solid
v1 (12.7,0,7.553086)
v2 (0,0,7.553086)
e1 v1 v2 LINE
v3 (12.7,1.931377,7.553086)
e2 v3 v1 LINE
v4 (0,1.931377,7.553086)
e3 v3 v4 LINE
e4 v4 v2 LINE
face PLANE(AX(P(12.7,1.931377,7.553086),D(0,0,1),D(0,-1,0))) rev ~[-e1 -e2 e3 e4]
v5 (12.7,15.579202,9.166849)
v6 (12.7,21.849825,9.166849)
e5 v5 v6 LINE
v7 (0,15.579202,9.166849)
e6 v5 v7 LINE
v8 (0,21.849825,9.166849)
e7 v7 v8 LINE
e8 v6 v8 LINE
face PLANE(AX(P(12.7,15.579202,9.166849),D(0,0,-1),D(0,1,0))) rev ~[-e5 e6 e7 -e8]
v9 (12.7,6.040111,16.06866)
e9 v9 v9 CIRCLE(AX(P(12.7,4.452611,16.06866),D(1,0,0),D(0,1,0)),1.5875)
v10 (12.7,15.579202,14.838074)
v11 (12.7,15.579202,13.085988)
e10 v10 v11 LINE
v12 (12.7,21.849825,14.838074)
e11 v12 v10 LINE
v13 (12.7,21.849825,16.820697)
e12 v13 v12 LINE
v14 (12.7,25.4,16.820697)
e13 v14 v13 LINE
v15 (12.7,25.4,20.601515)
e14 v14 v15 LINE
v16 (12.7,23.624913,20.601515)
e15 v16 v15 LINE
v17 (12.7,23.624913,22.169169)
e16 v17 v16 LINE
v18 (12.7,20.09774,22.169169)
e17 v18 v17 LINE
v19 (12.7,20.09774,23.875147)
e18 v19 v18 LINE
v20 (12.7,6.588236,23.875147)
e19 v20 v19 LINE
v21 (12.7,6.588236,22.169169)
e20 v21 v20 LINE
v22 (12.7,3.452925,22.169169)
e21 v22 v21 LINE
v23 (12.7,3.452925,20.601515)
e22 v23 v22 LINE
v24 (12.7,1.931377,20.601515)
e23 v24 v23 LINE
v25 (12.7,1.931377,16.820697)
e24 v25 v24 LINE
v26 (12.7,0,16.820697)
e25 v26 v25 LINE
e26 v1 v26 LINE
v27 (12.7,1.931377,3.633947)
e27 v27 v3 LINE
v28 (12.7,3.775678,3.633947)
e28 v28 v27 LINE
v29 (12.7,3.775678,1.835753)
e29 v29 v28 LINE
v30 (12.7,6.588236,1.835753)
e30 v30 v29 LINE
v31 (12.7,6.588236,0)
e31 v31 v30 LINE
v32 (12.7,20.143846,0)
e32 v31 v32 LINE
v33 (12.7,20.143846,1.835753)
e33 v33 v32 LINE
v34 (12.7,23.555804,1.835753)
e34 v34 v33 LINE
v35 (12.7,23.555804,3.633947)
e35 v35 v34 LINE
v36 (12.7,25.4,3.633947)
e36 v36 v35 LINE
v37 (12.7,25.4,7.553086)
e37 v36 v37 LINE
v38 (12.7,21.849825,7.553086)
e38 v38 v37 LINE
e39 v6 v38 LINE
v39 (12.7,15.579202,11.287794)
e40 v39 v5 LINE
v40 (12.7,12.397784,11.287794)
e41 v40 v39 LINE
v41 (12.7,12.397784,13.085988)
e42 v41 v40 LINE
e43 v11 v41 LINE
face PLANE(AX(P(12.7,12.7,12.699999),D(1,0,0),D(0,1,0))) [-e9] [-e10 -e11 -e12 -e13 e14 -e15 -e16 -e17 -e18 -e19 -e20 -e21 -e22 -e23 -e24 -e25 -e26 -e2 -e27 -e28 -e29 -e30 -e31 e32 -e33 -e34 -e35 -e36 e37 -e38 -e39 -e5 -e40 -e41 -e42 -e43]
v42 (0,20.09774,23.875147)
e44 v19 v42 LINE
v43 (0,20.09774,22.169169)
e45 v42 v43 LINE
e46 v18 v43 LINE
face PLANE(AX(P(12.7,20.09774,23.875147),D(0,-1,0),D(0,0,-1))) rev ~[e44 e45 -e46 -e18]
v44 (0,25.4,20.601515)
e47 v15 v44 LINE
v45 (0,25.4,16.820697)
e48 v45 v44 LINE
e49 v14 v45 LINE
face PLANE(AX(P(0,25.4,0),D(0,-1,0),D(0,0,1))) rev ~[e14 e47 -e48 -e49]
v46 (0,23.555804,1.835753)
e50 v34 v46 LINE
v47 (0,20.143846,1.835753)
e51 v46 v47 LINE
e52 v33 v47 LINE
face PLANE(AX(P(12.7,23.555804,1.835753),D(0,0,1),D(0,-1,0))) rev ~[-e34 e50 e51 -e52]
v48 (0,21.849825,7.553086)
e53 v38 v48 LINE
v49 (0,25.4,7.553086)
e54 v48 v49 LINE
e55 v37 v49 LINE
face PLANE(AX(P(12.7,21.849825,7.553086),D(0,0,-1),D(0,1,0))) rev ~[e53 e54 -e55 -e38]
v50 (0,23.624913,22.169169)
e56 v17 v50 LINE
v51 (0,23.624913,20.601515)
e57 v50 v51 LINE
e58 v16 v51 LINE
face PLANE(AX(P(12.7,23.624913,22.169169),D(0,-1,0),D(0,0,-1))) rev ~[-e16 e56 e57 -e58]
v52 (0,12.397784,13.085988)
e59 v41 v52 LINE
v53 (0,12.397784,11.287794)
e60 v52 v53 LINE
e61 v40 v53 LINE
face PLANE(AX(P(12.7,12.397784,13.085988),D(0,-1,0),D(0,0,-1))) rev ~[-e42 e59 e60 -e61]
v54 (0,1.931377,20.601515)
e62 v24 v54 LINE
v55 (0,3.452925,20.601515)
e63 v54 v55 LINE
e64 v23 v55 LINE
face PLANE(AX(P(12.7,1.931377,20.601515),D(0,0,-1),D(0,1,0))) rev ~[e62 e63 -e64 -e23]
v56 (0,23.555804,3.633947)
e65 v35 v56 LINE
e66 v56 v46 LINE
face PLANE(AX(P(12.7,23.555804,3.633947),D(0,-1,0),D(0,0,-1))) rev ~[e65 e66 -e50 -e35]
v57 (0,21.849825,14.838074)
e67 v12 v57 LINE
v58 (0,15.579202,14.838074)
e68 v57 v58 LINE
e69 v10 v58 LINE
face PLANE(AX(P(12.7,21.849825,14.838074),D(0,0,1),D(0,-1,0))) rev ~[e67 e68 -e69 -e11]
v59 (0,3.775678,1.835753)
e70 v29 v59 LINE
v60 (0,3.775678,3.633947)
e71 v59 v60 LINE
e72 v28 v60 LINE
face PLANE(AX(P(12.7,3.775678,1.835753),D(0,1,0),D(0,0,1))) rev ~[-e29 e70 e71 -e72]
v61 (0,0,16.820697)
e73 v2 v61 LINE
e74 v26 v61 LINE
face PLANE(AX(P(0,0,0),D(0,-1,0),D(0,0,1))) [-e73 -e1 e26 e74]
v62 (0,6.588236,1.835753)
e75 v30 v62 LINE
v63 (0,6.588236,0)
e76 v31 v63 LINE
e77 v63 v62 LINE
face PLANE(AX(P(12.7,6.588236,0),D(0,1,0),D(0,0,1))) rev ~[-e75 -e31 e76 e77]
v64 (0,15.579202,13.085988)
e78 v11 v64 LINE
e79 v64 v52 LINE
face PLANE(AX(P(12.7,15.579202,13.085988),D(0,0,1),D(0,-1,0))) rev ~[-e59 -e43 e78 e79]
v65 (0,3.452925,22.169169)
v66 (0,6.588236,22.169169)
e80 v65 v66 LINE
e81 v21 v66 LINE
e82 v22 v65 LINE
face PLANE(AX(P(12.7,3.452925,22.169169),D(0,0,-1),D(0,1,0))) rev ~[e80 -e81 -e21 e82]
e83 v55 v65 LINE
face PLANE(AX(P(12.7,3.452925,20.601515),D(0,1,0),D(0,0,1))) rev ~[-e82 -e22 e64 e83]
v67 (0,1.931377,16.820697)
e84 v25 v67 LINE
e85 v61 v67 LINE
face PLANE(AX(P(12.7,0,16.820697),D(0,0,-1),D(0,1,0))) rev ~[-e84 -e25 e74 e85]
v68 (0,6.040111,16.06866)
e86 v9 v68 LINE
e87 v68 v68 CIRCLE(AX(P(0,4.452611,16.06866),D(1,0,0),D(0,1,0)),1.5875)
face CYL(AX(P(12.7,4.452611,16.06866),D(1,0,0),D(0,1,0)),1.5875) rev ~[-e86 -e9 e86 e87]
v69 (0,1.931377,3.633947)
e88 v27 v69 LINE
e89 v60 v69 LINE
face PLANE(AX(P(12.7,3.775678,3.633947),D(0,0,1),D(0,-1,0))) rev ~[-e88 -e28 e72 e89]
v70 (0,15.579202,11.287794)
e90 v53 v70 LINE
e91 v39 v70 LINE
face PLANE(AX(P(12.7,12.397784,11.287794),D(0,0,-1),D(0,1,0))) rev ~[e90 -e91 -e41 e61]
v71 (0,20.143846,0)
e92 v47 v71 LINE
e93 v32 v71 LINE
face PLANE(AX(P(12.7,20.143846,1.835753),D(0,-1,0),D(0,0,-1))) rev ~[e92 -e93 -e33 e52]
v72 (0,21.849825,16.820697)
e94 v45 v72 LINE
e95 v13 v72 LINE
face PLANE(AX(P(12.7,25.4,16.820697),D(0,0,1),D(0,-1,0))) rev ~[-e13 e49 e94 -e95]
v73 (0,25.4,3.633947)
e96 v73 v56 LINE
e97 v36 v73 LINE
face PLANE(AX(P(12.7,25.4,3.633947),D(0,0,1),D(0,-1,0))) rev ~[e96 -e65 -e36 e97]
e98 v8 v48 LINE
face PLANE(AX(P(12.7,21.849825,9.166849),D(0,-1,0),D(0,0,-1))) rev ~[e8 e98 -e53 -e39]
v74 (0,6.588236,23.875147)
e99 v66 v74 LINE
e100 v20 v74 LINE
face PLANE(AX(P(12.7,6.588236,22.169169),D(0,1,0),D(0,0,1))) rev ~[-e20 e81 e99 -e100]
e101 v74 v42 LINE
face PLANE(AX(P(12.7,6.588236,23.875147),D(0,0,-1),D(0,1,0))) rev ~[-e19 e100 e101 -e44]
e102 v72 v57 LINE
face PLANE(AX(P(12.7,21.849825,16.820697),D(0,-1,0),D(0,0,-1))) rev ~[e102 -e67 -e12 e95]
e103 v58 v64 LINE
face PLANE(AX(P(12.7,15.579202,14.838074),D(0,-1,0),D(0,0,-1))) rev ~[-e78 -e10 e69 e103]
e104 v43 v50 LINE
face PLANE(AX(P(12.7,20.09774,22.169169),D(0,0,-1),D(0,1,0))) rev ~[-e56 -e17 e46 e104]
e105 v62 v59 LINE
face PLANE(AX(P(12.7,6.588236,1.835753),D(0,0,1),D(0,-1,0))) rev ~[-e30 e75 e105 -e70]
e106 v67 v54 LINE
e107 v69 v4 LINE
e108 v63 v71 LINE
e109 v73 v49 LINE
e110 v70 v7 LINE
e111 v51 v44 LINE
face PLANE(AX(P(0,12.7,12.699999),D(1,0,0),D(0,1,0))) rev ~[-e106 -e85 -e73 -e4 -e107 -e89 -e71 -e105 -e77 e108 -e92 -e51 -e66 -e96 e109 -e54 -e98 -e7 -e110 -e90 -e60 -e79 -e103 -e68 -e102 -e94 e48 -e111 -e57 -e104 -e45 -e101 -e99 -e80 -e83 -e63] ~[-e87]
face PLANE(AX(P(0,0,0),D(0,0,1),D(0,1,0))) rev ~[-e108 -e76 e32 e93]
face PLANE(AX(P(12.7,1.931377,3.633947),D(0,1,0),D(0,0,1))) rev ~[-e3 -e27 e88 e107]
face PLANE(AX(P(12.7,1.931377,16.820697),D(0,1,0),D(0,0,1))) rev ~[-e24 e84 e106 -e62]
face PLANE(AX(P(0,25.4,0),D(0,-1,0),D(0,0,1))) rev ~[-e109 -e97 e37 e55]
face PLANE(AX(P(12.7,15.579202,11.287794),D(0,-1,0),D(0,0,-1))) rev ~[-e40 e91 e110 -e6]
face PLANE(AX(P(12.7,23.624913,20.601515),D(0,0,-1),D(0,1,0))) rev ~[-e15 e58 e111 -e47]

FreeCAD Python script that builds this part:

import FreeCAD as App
import Part
import Sketcher
from FreeCAD import Vector
Q = App.Units.Quantity


def add_polygon(sketch, points):
    """Adds a closed chain of lines whose ends are joined by coincident constraints."""
    first, n = sketch.GeometryCount, len(points)
    for a, b in zip(points, points[1:] + points[:1]):
        sketch.addGeometry(Part.LineSegment(App.Vector(*a, 0), App.Vector(*b, 0)), False)
    for i in range(n):
        sketch.addConstraint(Sketcher.Constraint("Coincident", first + i, 2, first + (i + 1) % n, 1))

doc = App.newDocument("Part")
body = doc.addObject("PartDesign::Body", "Body")

# Sketch on YZ plane
sketch1 = body.newObject("Sketcher::SketchObject", "Sketch")
sketch1.AttachmentSupport = (doc.getObject("YZ_Plane"), [""])
sketch1.MapMode = "FlatFace"
add_polygon(sketch1, [(0, 25.399998), (0, 0), (25.4, 0), (25.4, 25.399998)])  # lines 0-3
sketch1.addConstraint([
    Sketcher.Constraint("Vertical", 0),
    Sketcher.Constraint("Horizontal", 1),
    Sketcher.Constraint("Vertical", 2),
    Sketcher.Constraint("Horizontal", 3),
    Sketcher.Constraint("Coincident", 0, 2, -1, 1),
    Sketcher.Constraint("Equal", 3, 0),
    Sketcher.Constraint("DistanceX", 1, 1, 1, 2, Q("1 in")),
])
pad1 = body.newObject("PartDesign::Pad", "Pad")
pad1.Profile = sketch1
pad1.Length = Q("0.5 in")

# Sketch on YZ plane
sketch2 = body.newObject("Sketcher::SketchObject", "Sketch001")
sketch2.AttachmentSupport = (doc.getObject("YZ_Plane"), [""])
sketch2.MapMode = "FlatFace"
sketch2.AttachmentOffset = App.Placement(Vector(0, 0, 0.5 * 25.4), App.Rotation())
add_polygon(sketch2, [(0, 25.399998), (0, 16.820697), (1.931377, 16.820697), (1.931377, 20.601515), (3.452925, 20.601515), (3.452925, 22.169169), (6.588236, 22.169169), (6.588236, 23.875147), (20.09774, 23.875147), (20.09774, 22.169169), (23.624913, 22.169169), (23.624913, 20.601515), (25.4, 20.601515), (25.4, 25.399998)])  # lines 0-13
add_polygon(sketch2, [(0, 0), (6.588236, 0), (6.588236, 1.835753), (3.775678, 1.835753), (3.775678, 3.633947), (1.931377, 3.633947), (1.931377, 7.553086), (0, 7.553086)])  # lines 14-21
add_polygon(sketch2, [(20.143846, 1.835753), (20.143846, 0), (25.4, 0), (25.4, 3.633947), (23.555804, 3.633947), (23.555804, 1.835753)])  # lines 22-27
add_polygon(sketch2, [(21.849825, 7.553086), (25.4, 7.553086), (25.4, 16.820697), (21.849825, 16.820697), (21.849825, 14.838074), (15.579202, 14.838074), (15.579202, 13.085988), (12.397784, 13.085988), (12.397784, 11.287794), (15.579202, 11.287794), (15.579202, 9.166849), (21.849825, 9.166849)])  # lines 28-39
sketch2.addConstraint([
    Sketcher.Constraint("Vertical", 0),
    Sketcher.Constraint("Horizontal", 1),
    Sketcher.Constraint("Vertical", 2),
    Sketcher.Constraint("Horizontal", 3),
    Sketcher.Constraint("Vertical", 4),
    Sketcher.Constraint("Horizontal", 5),
    Sketcher.Constraint("Vertical", 6),
    Sketcher.Constraint("Horizontal", 7),
    Sketcher.Constraint("Vertical", 8),
    Sketcher.Constraint("Horizontal", 9),
    Sketcher.Constraint("Vertical", 10),
    Sketcher.Constraint("Horizontal", 11),
    Sketcher.Constraint("Vertical", 12),
    Sketcher.Constraint("Horizontal", 13),
    Sketcher.Constraint("Horizontal", 14),
    Sketcher.Constraint("Vertical", 15),
    Sketcher.Constraint("Horizontal", 16),
    Sketcher.Constraint("Vertical", 17),
    Sketcher.Constraint("Horizontal", 18),
    Sketcher.Constraint("Vertical", 19),
    Sketcher.Constraint("Horizontal", 20),
    Sketcher.Constraint("Vertical", 21),
    Sketcher.Constraint("Vertical", 22),
    Sketcher.Constraint("Horizontal", 23),
    Sketcher.Constraint("Vertical", 24),
    Sketcher.Constraint("Horizontal", 25),
    Sketcher.Constraint("Vertical", 26),
    Sketcher.Constraint("Horizontal", 27),
    Sketcher.Constraint("Horizontal", 28),
    Sketcher.Constraint("Vertical", 29),
    Sketcher.Constraint("Horizontal", 30),
    Sketcher.Constraint("Vertical", 31),
    Sketcher.Constraint("Horizontal", 32),
    Sketcher.Constraint("Vertical", 33),
    Sketcher.Constraint("Horizontal", 34),
    Sketcher.Constraint("Vertical", 35),
    Sketcher.Constraint("Horizontal", 36),
    Sketcher.Constraint("Vertical", 37),
    Sketcher.Constraint("Horizontal", 38),
    Sketcher.Constraint("Vertical", 39),
    Sketcher.Constraint("Coincident", 21, 2, -1, 1),
    Sketcher.Constraint("PointOnObject", 0, 2, -2),
    Sketcher.Constraint("PointOnObject", 22, 2, -1),
    Sketcher.Constraint("Horizontal", 5, 2, 8, 2),
    Sketcher.Constraint("Horizontal", 3, 2, 10, 2),
    Sketcher.Constraint("Horizontal", 18, 2, 24, 2),
    Sketcher.Constraint("Horizontal", 16, 2, 26, 2),
    Sketcher.Constraint("Horizontal", 20, 2, 28, 2),
    Sketcher.Constraint("Horizontal", 1, 2, 29, 2),
    Sketcher.Constraint("Vertical", 6, 2, 14, 2),
    Sketcher.Constraint("Vertical", 2, 2, 18, 2),
    Sketcher.Constraint("Vertical", 12, 2, 23, 2),
    Sketcher.Constraint("Vertical", 24, 2, 28, 2),
    Sketcher.Constraint("Vertical", 33, 2, 36, 2),
    Sketcher.Constraint("Vertical", 31, 2, 38, 2),
    Sketcher.Constraint("Equal", 26, 35),
    Sketcher.Constraint("DistanceX", 13, 2, 13, 1, Q("1 in")),
    Sketcher.Constraint("DistanceY", -1, 1, 12, 2, Q("0.9999999 in")),
    Sketcher.Constraint("DistanceX", 18, 2, 18, 1, 1.844301),
    Sketcher.Constraint("DistanceY", 0, 2, 0, 1, 8.579301),
    Sketcher.Constraint("DistanceX", 3, 1, 3, 2, 1.521548),
    Sketcher.Constraint("DistanceX", 5, 1, 5, 2, 3.135311),
    Sketcher.Constraint("DistanceX", 34, 2, 34, 1, 3.181418),
    Sketcher.Constraint("DistanceY", 2, 1, 2, 2, 3.780818),
    Sketcher.Constraint("DistanceY", 19, 1, 19, 2, 3.919139),
    Sketcher.Constraint("DistanceY", 29, 1, 29, 2, 9.267611),
    Sketcher.Constraint("DistanceY", 25, 2, 38, 2, 5.532902),
    Sketcher.Constraint("DistanceX", 1, 1, 1, 2, 1.931377),
    Sketcher.Constraint("DistanceX", 7, 1, 7, 2, 13.509504),
    Sketcher.Constraint("DistanceX", 9, 1, 9, 2, 3.527173),
    Sketcher.Constraint("DistanceX", 23, 1, 23, 2, 5.256154),
    Sketcher.Constraint("DistanceX", 25, 2, 25, 1, 1.844196),
    Sketcher.Constraint("DistanceX", 28, 1, 28, 2, 3.550175),
    Sketcher.Constraint("DistanceX", 32, 2, 32, 1, 6.270623),
    Sketcher.Constraint("DistanceY", 4, 1, 4, 2, 1.567654),
    Sketcher.Constraint("DistanceY", 6, 1, 6, 2, 1.705978),
    Sketcher.Constraint("DistanceY", 15, 1, 15, 2, 1.835753),
    Sketcher.Constraint("DistanceY", 31, 2, 31, 1, 1.982623),
    Sketcher.Constraint("DistanceY", 33, 2, 33, 1, 1.752086),
])
pocket1 = body.newObject("PartDesign::Pocket", "Pocket")
pocket1.Profile = sketch2
pocket1.Length = Q("1 in")

# Sketch on YZ plane
sketch3 = body.newObject("Sketcher::SketchObject", "Sketch002")
sketch3.AttachmentSupport = (doc.getObject("YZ_Plane"), [""])
sketch3.MapMode = "FlatFace"
sketch3.AttachmentOffset = App.Placement(Vector(0, 0, 0.5 * 25.4), App.Rotation())
sketch3.addGeometry(Part.Circle(Vector(4.452611, 16.06866, 0), Vector(0, 0, 1), 1.5875), False)
sketch3.addConstraint([
    Sketcher.Constraint("Diameter", 0, Q("0.125 in")),
    Sketcher.Constraint("DistanceX", -1, 1, 0, 3, 4.452611),
    Sketcher.Constraint("DistanceY", -1, 1, 0, 3, 16.06866),
])
pocket2 = body.newObject("PartDesign::Pocket", "Pocket001")
pocket2.Profile = sketch3
pocket2.Length = Q("0.5 in")

doc.recompute()
